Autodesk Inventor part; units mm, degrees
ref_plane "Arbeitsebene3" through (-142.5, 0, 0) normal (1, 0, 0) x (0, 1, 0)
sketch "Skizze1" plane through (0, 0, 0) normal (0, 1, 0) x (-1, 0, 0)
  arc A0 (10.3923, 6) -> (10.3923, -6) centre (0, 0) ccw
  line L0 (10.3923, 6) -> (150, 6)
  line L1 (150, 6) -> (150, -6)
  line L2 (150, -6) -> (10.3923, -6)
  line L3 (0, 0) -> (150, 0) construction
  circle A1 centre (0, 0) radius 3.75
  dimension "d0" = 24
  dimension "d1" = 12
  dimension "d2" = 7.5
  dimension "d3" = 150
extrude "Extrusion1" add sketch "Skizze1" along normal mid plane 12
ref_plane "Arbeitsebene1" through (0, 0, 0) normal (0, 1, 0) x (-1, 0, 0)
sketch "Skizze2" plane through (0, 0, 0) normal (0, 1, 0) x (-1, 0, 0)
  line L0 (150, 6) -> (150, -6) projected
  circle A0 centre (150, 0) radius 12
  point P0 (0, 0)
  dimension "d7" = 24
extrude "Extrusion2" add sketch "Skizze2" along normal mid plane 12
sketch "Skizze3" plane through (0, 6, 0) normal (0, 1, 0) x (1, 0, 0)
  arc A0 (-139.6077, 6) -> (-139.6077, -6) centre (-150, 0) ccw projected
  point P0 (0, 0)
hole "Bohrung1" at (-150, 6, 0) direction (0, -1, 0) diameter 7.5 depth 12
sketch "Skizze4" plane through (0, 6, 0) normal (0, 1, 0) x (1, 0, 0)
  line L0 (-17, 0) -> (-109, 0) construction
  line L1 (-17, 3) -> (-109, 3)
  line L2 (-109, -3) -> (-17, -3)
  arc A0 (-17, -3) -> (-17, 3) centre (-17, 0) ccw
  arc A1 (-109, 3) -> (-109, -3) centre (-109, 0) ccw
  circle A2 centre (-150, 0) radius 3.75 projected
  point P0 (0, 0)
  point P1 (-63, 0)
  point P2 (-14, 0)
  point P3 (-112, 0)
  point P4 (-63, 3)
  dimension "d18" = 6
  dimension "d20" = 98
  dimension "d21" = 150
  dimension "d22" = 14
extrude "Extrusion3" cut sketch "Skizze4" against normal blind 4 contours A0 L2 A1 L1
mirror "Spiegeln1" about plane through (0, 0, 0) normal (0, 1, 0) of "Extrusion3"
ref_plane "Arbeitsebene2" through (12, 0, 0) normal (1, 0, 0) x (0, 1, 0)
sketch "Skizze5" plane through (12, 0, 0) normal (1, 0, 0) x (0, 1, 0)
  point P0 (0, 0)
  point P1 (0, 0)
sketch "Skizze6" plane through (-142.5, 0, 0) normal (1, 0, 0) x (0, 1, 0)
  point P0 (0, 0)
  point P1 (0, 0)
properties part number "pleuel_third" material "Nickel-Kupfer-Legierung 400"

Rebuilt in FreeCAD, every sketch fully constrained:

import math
import FreeCAD as App
import Part
import Sketcher

V = App.Vector

doc = App.newDocument("Part")
params = doc.addObject("Spreadsheet::Sheet", "Params")
for row, (alias, value) in enumerate([
    ("sketch1_radius", "12 mm"),
    ("sketch1_diameter", "7.5 mm"),
    ("sketch1_height", "12 mm"),
    ("pad1_length", "12 mm"),
    ("sketch2_diameter", "24 mm"),
    ("pad2_length", "12 mm"),
    ("sketch3_diameter", "7.5 mm"),
    ("hole_diameter", "7.5 mm"),
    ("hole_depth", "12 mm"),
    ("sketch4_radius", "3 mm"),
    ("sketch4_width", "92 mm"),
    ("pocket1_length", "4 mm"),
], start=1):
    params.set(f"A{row}", alias)
    params.set(f"B{row}", "=" + value)
    params.setAlias(f"B{row}", alias)

body = doc.addObject("PartDesign::Body", "Body")

# Sketch on XZ plane
sketch1 = doc.addObject("Sketcher::SketchObject", "Sketch")
body.addObject(sketch1)
sketch1.AttachmentSupport = (doc.XZ_Plane, [""])
sketch1.MapMode = "FlatFace"
sketch1.addGeometry([
    Part.LineSegment(V(-150, 6, 0), V(-10.4, 6, 0)),  # 0
    Part.ArcOfCircle(Part.Circle(V(0, 0, 0), V(0, 0, 1), 12), math.radians(-150), math.radians(150)),  # 1
    Part.LineSegment(V(-10.4, -6, 0), V(-150, -6, 0)),  # 2
    Part.LineSegment(V(-150, -6, 0), V(-150, 6, 0)),  # 3
    Part.Circle(V(0, 0, 0), V(0, 0, 1), 3.8),  # 4
], False)
sketch1.addConstraint([
    Sketcher.Constraint("Coincident", 0, 2, 1, 2),
    Sketcher.Constraint("Coincident", 1, 1, 2, 1),
    Sketcher.Constraint("Coincident", 2, 2, 3, 1),
    Sketcher.Constraint("Coincident", 3, 2, 0, 1),
    Sketcher.Constraint("Horizontal", 0),
    Sketcher.Constraint("Horizontal", 2),
    Sketcher.Constraint("Vertical", 3),
    Sketcher.Constraint("Coincident", 1, 3, -1, 1),
    Sketcher.Constraint("Coincident", 4, 3, -1, 1),
    Sketcher.Constraint("Vertical", 0, 2, 1, 1),
    Sketcher.Constraint("Radius", 1, 12.0),
    Sketcher.Constraint("Diameter", 4, 7.5),
    Sketcher.Constraint("DistanceY", 3, 1, 3, 2, 12.0),
    Sketcher.Constraint("DistanceX", 2, 2, -1, 1, 150.0),
])
sketch1.setExpression("Constraints[10]", "Params.sketch1_radius")
sketch1.setExpression("Constraints[11]", "Params.sketch1_diameter")
sketch1.setExpression("Constraints[12]", "Params.sketch1_height")
pad1 = doc.addObject("PartDesign::Pad", "Pad")
body.addObject(pad1)
pad1.Profile = sketch1
pad1.setExpression("Length", "Params.pad1_length")
pad1.Midplane = True

# Sketch on XZ plane
sketch2 = doc.addObject("Sketcher::SketchObject", "Sketch001")
body.addObject(sketch2)
sketch2.AttachmentSupport = (doc.XZ_Plane, [""])
sketch2.MapMode = "FlatFace"
sketch2.addGeometry(Part.Circle(V(-150, 0, 0), V(0, 0, 1), 12), False)
sketch2.addConstraint([
    Sketcher.Constraint("PointOnObject", 0, 3, -1),
    Sketcher.Constraint("Diameter", 0, 24.0),
    Sketcher.Constraint("DistanceX", 0, 3, -1, 1, 150.0),
])
sketch2.setExpression("Constraints[1]", "Params.sketch2_diameter")
pad2 = doc.addObject("PartDesign::Pad", "Pad001")
body.addObject(pad2)
pad2.Profile = sketch2
pad2.setExpression("Length", "Params.pad2_length")
pad2.Midplane = True

# Sketch on XZ plane
sketch3 = doc.addObject("Sketcher::SketchObject", "Sketch002")
body.addObject(sketch3)
sketch3.AttachmentSupport = (doc.XZ_Plane, [""])
sketch3.MapMode = "FlatFace"
sketch3.AttachmentOffset = App.Placement(V(0, 0, -6), App.Rotation())
sketch3.addGeometry(Part.Circle(V(-150, 0, 0), V(0, 0, 1), 3.8), False)
sketch3.addConstraint([
    Sketcher.Constraint("PointOnObject", 0, 3, -1),
    Sketcher.Constraint("Diameter", 0, 7.5),
    Sketcher.Constraint("DistanceX", 0, 3, -1, 1, 150.0),
])
sketch3.setExpression("Constraints[1]", "Params.sketch3_diameter")
doc.recompute()
hole = doc.addObject("PartDesign::Hole", "Hole")
body.addObject(hole)
hole.Profile = sketch3
hole.ThreadType = "None"
hole.setExpression("Diameter", "Params.hole_diameter")
hole.DepthType = "Dimension"
hole.setExpression("Depth", "Params.hole_depth")
hole.DrillPoint = "Flat"
hole.Reversed = True

# Sketch on XZ plane
sketch4 = doc.addObject("Sketcher::SketchObject", "Sketch003")
body.addObject(sketch4)
sketch4.AttachmentSupport = (doc.XZ_Plane, [""])
sketch4.MapMode = "FlatFace"
sketch4.AttachmentOffset = App.Placement(V(0, 0, -6), App.Rotation())
sketch4.addGeometry([
    Part.ArcOfCircle(Part.Circle(V(-17, 0, 0), V(0, 0, 1), 3), math.radians(-90), math.radians(90)),
    Part.LineSegment(V(-17, -3, 0), V(-109, -3, 0)),
    Part.ArcOfCircle(Part.Circle(V(-109, 0, 0), V(0, 0, 1), 3), math.radians(90), math.radians(270)),
    Part.LineSegment(V(-109, 3, 0), V(-17, 3, 0)),
], False)
sketch4.addConstraint([
    Sketcher.Constraint("Tangent", 0, 1, 1, 1),
    Sketcher.Constraint("Tangent", 1, 2, 2, 2),
    Sketcher.Constraint("Tangent", 2, 1, 3, 1),
    Sketcher.Constraint("Tangent", 3, 2, 0, 2),
    Sketcher.Constraint("Horizontal", 1),
    Sketcher.Constraint("Horizontal", 3),
    Sketcher.Constraint("PointOnObject", 0, 3, -1),
    Sketcher.Constraint("Radius", 0, 3.0),
    Sketcher.Constraint("DistanceX", 1, 2, 1, 1, 92.0),
    Sketcher.Constraint("DistanceX", 0, 3, -1, 1, 17.0),
])
sketch4.setExpression("Constraints[7]", "Params.sketch4_radius")
sketch4.setExpression("Constraints[8]", "Params.sketch4_width")
pocket1 = doc.addObject("PartDesign::Pocket", "Pocket")
body.addObject(pocket1)
pocket1.Profile = sketch4
pocket1.setExpression("Length", "Params.pocket1_length")
pocket1.Reversed = True
doc.recompute()

mirrored = doc.addObject("PartDesign::Mirrored", "Mirrored")
body.addObject(mirrored)
mirrored.Originals = [pocket1]
mirrored.MirrorPlane = (doc.XZ_Plane, [""])
body.Tip = mirrored

doc.recompute()
